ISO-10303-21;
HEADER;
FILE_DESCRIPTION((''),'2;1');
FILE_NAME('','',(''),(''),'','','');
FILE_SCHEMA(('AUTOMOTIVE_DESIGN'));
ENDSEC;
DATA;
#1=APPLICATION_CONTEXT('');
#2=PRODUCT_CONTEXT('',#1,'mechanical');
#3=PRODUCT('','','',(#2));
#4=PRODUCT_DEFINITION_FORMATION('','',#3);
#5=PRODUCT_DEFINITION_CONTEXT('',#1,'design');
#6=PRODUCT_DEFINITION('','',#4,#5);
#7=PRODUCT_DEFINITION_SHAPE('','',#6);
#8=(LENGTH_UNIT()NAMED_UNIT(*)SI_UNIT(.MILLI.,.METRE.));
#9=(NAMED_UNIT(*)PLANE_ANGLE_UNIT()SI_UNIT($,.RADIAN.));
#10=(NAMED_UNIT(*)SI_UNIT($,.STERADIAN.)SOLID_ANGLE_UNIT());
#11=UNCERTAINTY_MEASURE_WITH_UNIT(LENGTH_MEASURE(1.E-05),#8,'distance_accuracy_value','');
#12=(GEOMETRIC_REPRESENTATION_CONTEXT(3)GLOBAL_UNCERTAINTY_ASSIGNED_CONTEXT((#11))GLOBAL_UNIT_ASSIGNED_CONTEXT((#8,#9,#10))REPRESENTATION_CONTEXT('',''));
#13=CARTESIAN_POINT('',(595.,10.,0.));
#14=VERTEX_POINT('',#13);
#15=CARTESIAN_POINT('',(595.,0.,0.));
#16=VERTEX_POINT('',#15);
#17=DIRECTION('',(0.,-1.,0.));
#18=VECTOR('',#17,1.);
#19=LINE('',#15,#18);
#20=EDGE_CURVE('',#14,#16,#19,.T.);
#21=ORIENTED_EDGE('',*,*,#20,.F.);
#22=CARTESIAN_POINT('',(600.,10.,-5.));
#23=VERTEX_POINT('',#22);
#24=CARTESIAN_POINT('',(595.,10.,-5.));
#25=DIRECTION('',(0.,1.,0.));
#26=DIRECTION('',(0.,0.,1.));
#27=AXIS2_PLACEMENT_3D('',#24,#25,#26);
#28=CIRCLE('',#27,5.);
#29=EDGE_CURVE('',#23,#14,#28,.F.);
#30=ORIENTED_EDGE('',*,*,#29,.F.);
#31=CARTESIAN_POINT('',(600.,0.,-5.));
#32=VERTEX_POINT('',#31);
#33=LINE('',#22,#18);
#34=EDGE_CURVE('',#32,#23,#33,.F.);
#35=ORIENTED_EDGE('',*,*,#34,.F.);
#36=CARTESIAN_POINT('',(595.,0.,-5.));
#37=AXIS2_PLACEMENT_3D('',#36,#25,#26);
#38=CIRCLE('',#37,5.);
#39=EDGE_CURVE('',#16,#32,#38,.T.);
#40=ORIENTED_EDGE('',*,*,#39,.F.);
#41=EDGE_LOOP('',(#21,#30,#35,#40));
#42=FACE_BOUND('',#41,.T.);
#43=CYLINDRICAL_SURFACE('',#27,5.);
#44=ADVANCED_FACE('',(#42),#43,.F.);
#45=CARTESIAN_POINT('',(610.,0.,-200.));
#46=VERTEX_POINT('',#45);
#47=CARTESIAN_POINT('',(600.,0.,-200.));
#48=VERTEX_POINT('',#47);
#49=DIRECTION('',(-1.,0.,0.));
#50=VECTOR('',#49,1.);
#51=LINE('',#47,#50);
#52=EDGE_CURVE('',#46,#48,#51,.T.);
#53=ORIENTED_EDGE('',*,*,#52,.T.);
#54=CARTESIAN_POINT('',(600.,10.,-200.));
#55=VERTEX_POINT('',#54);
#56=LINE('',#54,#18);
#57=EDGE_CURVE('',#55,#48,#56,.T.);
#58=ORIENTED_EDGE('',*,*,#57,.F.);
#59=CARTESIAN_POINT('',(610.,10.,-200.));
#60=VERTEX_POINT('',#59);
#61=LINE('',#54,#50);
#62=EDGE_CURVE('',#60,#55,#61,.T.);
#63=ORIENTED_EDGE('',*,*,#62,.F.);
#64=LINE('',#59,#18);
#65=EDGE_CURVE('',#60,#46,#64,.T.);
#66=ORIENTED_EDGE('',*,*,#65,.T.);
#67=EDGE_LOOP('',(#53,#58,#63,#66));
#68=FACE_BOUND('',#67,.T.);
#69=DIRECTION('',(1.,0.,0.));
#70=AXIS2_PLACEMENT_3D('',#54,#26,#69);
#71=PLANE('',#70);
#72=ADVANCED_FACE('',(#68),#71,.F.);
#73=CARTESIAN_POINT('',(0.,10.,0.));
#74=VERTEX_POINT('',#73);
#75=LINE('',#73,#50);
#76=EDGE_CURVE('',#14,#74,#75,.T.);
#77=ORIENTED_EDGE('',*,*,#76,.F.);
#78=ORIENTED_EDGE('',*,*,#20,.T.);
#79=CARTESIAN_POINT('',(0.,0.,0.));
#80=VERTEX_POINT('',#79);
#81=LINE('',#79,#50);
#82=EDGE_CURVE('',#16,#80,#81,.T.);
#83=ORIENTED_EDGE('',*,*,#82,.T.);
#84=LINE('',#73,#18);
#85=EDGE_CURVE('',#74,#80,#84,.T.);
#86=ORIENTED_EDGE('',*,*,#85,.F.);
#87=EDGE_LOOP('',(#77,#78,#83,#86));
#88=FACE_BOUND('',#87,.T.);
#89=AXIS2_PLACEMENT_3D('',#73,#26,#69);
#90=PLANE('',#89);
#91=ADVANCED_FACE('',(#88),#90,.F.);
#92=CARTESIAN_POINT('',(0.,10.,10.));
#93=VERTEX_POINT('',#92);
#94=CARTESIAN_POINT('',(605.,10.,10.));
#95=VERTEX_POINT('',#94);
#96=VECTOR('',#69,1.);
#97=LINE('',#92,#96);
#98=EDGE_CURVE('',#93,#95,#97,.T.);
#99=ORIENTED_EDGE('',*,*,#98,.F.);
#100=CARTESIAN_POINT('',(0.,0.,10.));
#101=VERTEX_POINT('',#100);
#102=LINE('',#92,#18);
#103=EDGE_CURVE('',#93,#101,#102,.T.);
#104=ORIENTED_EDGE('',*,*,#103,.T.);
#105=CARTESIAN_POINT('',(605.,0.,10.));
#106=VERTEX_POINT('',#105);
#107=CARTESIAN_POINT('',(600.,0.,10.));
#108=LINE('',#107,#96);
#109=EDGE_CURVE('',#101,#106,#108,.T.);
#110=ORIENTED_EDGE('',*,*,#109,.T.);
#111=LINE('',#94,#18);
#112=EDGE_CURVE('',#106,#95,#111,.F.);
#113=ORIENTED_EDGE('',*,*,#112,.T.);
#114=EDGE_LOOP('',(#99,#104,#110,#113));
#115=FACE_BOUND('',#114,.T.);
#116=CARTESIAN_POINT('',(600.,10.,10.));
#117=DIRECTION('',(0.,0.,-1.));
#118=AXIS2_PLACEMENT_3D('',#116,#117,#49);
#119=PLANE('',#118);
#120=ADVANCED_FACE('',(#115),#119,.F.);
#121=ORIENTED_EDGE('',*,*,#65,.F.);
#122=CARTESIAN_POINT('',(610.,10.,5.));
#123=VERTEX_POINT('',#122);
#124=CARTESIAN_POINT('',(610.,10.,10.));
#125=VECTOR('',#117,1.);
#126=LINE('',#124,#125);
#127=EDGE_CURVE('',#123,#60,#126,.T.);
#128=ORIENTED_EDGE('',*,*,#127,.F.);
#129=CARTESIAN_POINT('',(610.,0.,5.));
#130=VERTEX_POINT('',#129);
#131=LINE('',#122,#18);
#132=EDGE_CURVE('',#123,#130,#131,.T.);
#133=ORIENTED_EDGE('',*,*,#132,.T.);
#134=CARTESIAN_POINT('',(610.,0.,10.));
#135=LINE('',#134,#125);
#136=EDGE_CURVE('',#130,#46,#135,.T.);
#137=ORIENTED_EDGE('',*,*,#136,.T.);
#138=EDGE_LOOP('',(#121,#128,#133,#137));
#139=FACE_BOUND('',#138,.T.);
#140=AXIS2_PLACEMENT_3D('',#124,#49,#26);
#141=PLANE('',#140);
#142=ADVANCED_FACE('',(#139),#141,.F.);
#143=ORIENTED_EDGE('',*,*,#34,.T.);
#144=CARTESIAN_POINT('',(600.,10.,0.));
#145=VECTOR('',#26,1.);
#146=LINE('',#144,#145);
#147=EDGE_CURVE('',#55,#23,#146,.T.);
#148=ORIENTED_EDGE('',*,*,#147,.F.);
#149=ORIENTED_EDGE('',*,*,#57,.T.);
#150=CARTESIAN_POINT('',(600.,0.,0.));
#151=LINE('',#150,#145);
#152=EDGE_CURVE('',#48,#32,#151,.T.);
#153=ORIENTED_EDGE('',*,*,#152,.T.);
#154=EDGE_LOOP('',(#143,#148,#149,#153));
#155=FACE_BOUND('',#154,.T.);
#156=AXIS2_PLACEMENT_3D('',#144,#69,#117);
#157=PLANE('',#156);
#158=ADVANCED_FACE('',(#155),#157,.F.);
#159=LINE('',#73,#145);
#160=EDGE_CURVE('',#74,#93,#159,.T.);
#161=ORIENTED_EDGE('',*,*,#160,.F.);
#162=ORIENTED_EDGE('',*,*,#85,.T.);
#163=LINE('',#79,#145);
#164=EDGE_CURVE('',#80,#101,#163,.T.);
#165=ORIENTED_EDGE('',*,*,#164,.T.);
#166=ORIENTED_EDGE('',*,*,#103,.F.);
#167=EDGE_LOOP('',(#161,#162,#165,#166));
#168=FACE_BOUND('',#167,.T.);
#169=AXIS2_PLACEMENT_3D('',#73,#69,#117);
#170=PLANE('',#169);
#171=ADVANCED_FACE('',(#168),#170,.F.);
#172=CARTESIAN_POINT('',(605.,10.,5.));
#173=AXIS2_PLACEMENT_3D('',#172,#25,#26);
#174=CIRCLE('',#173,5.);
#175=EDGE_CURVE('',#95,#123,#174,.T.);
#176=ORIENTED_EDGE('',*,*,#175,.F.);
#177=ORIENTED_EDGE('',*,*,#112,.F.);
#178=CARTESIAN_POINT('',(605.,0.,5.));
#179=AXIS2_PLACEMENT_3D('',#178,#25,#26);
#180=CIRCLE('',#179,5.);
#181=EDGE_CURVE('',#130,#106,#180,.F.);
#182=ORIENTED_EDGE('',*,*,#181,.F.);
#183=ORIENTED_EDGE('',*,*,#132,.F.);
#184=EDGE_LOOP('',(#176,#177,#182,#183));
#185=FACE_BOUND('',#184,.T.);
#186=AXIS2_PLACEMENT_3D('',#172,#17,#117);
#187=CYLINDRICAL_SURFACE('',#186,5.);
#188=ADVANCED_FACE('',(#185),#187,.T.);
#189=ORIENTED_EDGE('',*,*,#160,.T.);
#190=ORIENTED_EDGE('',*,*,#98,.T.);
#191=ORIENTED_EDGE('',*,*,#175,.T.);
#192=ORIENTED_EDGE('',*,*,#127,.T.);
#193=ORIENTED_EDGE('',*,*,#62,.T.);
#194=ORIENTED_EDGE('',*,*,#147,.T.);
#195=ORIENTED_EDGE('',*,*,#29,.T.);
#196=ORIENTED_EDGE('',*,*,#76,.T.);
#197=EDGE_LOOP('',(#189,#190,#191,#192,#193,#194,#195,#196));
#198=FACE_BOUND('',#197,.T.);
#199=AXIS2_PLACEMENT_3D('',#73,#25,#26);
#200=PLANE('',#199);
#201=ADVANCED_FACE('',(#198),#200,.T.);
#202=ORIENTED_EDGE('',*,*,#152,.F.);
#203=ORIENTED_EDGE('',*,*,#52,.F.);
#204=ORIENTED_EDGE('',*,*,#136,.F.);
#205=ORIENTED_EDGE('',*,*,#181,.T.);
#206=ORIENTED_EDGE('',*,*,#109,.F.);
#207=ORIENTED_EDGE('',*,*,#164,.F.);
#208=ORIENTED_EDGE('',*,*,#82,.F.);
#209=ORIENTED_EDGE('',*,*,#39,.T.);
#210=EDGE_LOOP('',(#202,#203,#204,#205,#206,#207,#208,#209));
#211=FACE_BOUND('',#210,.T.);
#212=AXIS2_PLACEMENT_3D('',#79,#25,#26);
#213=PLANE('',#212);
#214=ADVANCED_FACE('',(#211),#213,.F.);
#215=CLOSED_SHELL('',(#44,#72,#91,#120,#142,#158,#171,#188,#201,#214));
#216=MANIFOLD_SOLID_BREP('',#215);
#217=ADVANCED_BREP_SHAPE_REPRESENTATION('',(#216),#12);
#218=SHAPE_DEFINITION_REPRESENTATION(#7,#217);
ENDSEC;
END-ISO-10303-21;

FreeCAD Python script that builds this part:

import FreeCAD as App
import Part
import Sketcher

V = App.Vector
Q = App.Units.Quantity


def edges_at(feature, points):
    """Names of the edges that pass closest to the given points."""
    edges = feature.Shape.Edges
    near = lambda p: min(range(len(edges)), key=lambda i: edges[i].distToShape(Part.Vertex(*p))[0])
    return sorted({f"Edge{near(p) + 1}" for p in points})


def add_polygon(sketch, points):
    """Adds a closed chain of lines whose ends are joined by coincident constraints."""
    first, n = sketch.GeometryCount, len(points)
    for a, b in zip(points, points[1:] + points[:1]):
        sketch.addGeometry(Part.LineSegment(App.Vector(*a, 0), App.Vector(*b, 0)), False)
    for i in range(n):
        sketch.addConstraint(Sketcher.Constraint("Coincident", first + i, 2, first + (i + 1) % n, 1))

doc = App.newDocument("Part")
body = doc.addObject("PartDesign::Body", "Body")

sketch1 = body.newObject("Sketcher::SketchObject", "Sketch")
sketch1.AttachmentSupport = (doc.getObject("XZ_Plane"), [""])
sketch1.MapMode = "FlatFace"
add_polygon(sketch1, [(600, 0), (0, 0), (0, 10), (610, 10), (610, -200), (600, -200)])
sketch1.addConstraint([
    Sketcher.Constraint("Horizontal", 0),
    Sketcher.Constraint("Vertical", 1),
    Sketcher.Constraint("Horizontal", 2),
    Sketcher.Constraint("Vertical", 3),
    Sketcher.Constraint("Horizontal", 4),
    Sketcher.Constraint("Vertical", 5),
    Sketcher.Constraint("Coincident", 0, 2, -1, 1),
    Sketcher.Constraint("Equal", 4, 1),
    Sketcher.Constraint("DistanceX", 0, 2, 0, 1, Q("600 mm")),
    Sketcher.Constraint("DistanceX", 2, 1, 2, 2, Q("610 mm")),
    Sketcher.Constraint("DistanceY", 3, 2, 3, 1, Q("210 mm")),
])
pad1 = body.newObject("PartDesign::Pad", "Pad")
pad1.Profile = sketch1
pad1.Length = 10
pad1.Reversed = True
doc.recompute()

fillet = body.newObject("PartDesign::Fillet", "Fillet")
fillet.Base = (pad1, edges_at(pad1, [(600, 5, 0)]))
fillet.Radius = 5
doc.recompute()

fillet2 = body.newObject("PartDesign::Fillet", "Fillet001")
fillet2.Base = (fillet, edges_at(fillet, [(610, 5, 10)]))
fillet2.Radius = 5

doc.recompute()
